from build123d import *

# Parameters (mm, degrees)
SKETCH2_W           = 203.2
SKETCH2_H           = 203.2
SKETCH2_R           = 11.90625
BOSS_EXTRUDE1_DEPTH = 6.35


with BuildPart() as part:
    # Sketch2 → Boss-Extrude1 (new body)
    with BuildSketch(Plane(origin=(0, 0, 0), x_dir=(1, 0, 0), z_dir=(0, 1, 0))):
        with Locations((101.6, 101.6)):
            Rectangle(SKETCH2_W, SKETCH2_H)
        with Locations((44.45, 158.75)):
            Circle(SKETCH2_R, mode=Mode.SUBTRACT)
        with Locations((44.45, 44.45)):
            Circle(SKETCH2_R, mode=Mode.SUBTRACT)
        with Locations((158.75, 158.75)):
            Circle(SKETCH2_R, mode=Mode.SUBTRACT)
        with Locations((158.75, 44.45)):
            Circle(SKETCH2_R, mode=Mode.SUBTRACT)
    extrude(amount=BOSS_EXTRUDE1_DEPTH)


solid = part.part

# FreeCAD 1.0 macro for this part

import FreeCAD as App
import Part
import Sketcher
Q = App.Units.Quantity


def add_polygon(sketch, points):
    """Adds a closed chain of lines whose ends are joined by coincident constraints."""
    first, n = sketch.GeometryCount, len(points)
    for a, b in zip(points, points[1:] + points[:1]):
        sketch.addGeometry(Part.LineSegment(App.Vector(*a, 0), App.Vector(*b, 0)), False)
    for i in range(n):
        sketch.addConstraint(Sketcher.Constraint("Coincident", first + i, 2, first + (i + 1) % n, 1))

doc = App.newDocument("Part")
body = doc.addObject("PartDesign::Body", "Body")

sketch1 = doc.addObject("Sketcher::SketchObject", "Sketch")
body.addObject(sketch1)
sketch1.AttachmentSupport = (doc.XZ_Plane, [""])
sketch1.MapMode = "FlatFace"
add_polygon(sketch1, [(0, -203), (0, 0), (203, 0), (203, -203)])
sketch1.addGeometry(Part.Circle(App.Vector(44, -44, 0), App.Vector(0, 0, 1), 12), False)
sketch1.addGeometry(Part.Circle(App.Vector(159, -44, 0), App.Vector(0, 0, 1), 12), False)
sketch1.addGeometry(Part.Circle(App.Vector(44, -159, 0), App.Vector(0, 0, 1), 12), False)
sketch1.addGeometry(Part.Circle(App.Vector(159, -159, 0), App.Vector(0, 0, 1), 12), False)
sketch1.addConstraint(Sketcher.Constraint("Vertical", 0))
sketch1.addConstraint(Sketcher.Constraint("Horizontal", 1))
sketch1.addConstraint(Sketcher.Constraint("Vertical", 2))
sketch1.addConstraint(Sketcher.Constraint("Horizontal", 3))
sketch1.addConstraint(Sketcher.Constraint("Coincident", 0, 2, -1, 1))
sketch1.addConstraint(Sketcher.Constraint("Equal", 4, 5))
sketch1.addConstraint(Sketcher.Constraint("Equal", 5, 6))
sketch1.addConstraint(Sketcher.Constraint("Equal", 6, 7))
sketch1.addConstraint(Sketcher.Constraint("Horizontal", 4, 3, 5, 3))
sketch1.addConstraint(Sketcher.Constraint("Horizontal", 6, 3, 7, 3))
sketch1.addConstraint(Sketcher.Constraint("Vertical", 4, 3, 6, 3))
sketch1.addConstraint(Sketcher.Constraint("Vertical", 5, 3, 7, 3))
sketch1.addConstraint(Sketcher.Constraint("Equal", 3, 0))
sketch1.addConstraint(Sketcher.Constraint("DistanceX", 1, 1, 1, 2, Q("8 in")))
sketch1.addConstraint(Sketcher.Constraint("Diameter", 4, Q("0.9375 in")))
sketch1.addConstraint(Sketcher.Constraint("DistanceX", 4, 3, 5, 3, Q("4.5 in")))
sketch1.addConstraint(Sketcher.Constraint("DistanceY", 6, 3, 4, 3, Q("4.5 in")))
sketch1.addConstraint(Sketcher.Constraint("DistanceX", -1, 1, 4, 3, Q("1.75 in")))
sketch1.addConstraint(Sketcher.Constraint("DistanceY", 4, 3, -1, 1, Q("1.75 in")))
pad1 = doc.addObject("PartDesign::Pad", "Pad")
body.addObject(pad1)
pad1.Profile = sketch1
pad1.Length = Q("0.25 in")
pad1.Reversed = True

doc.recompute()
